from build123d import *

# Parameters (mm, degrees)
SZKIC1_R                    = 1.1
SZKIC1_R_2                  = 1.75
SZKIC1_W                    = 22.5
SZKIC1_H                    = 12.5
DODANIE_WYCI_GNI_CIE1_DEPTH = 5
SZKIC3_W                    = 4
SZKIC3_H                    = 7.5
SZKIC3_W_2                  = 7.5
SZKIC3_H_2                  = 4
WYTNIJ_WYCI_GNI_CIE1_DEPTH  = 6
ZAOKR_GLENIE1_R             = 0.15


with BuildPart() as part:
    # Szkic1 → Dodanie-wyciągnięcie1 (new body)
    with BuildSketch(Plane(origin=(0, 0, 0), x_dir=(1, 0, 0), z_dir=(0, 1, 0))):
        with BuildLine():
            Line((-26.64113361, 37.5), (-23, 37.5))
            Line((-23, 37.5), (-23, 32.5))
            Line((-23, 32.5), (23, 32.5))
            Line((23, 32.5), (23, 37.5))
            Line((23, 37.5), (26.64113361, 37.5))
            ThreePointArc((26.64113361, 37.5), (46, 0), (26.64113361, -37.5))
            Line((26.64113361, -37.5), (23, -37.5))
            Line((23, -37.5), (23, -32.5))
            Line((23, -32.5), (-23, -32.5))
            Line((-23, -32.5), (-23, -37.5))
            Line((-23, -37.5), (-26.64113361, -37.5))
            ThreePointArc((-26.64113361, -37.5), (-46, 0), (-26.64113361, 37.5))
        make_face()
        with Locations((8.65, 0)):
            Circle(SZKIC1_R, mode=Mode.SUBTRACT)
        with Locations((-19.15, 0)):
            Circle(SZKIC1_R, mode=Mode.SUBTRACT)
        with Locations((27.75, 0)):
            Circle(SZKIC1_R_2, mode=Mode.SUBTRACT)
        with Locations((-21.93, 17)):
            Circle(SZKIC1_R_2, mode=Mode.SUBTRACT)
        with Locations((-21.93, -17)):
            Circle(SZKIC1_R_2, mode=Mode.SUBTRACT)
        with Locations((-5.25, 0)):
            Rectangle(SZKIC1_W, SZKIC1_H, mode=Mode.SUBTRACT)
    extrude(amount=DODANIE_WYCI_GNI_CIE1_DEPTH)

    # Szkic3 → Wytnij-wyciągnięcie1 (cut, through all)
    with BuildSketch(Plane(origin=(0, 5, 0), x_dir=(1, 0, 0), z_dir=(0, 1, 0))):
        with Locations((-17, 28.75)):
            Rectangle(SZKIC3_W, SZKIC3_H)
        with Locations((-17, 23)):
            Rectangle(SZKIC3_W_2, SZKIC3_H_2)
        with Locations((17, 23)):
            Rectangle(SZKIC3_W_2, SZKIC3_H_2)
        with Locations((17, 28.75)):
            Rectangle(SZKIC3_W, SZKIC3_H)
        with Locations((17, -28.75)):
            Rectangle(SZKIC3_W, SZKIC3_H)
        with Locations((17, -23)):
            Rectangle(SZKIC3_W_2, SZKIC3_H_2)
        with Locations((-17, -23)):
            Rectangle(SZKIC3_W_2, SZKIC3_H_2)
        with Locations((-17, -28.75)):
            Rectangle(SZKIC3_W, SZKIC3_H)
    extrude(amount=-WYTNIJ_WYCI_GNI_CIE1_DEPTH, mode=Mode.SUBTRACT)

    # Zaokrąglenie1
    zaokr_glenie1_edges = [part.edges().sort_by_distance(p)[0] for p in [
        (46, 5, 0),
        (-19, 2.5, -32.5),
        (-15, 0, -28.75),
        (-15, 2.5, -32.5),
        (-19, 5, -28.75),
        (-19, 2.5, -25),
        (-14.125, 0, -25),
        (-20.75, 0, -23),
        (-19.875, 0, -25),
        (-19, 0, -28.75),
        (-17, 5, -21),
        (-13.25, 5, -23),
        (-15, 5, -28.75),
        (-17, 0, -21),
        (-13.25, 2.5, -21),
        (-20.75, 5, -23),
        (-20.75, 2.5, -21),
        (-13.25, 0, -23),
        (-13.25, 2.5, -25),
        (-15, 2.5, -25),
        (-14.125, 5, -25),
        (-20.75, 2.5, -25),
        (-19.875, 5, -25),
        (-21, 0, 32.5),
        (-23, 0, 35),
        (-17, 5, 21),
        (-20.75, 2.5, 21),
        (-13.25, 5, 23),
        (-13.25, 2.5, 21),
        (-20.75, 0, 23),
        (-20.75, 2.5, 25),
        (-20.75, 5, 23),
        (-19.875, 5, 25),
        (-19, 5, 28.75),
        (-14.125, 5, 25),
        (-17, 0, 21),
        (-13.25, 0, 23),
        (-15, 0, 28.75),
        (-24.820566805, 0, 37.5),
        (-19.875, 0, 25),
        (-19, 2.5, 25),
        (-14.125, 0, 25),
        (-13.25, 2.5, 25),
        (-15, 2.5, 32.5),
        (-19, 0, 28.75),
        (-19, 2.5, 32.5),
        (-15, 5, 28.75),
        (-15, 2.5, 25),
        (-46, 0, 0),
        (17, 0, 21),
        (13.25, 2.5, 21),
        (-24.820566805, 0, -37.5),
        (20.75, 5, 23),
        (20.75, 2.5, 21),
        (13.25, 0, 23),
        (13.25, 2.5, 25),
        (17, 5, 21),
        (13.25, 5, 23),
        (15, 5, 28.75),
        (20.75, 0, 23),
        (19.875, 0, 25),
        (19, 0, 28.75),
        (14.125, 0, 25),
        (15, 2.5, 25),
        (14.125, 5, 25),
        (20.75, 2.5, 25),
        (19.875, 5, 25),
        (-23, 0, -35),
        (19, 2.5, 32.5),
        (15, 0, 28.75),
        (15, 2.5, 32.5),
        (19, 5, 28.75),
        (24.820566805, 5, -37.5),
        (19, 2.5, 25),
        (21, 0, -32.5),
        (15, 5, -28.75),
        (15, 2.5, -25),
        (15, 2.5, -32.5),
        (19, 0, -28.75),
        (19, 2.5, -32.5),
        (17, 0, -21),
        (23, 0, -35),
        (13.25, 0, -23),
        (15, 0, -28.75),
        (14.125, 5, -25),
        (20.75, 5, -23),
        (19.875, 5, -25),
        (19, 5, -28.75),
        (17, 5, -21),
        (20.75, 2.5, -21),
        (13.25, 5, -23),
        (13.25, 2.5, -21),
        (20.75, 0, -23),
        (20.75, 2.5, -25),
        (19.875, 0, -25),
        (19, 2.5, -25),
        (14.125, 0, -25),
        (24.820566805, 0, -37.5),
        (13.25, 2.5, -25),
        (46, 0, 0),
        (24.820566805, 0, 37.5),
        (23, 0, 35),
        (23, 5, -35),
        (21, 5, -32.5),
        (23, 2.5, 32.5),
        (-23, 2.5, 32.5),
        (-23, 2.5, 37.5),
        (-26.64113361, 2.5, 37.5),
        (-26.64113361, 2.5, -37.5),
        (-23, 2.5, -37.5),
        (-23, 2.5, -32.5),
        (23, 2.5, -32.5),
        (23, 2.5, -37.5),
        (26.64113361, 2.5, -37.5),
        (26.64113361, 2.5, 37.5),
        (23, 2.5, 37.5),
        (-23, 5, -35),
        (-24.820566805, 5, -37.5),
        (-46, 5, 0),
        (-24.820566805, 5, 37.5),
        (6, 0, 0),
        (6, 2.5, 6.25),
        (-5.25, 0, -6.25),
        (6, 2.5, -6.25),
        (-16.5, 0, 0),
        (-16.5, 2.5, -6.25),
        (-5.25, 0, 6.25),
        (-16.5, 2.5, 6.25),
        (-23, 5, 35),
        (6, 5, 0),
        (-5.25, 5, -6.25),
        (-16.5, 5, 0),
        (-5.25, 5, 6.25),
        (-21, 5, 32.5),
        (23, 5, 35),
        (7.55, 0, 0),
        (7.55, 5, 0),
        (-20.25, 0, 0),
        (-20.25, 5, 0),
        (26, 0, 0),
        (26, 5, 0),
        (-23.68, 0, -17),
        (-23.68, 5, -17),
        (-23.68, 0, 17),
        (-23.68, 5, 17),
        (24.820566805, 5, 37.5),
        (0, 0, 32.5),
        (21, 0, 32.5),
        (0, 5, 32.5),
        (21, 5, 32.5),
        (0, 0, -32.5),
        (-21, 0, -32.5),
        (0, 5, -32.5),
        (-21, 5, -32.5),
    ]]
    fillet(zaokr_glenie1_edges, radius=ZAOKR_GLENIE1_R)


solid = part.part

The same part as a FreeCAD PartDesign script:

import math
import FreeCAD as App
import Part
import Sketcher

V = App.Vector
Q = App.Units.Quantity

doc = App.newDocument("Part")
body = doc.addObject("PartDesign::Body", "Body")

sketch1 = body.newObject("Sketcher::SketchObject", "Sketch")
sketch1.AttachmentSupport = (doc.getObject("XZ_Plane"), [""])
sketch1.MapMode = "FlatFace"
sketch1.addGeometry(Part.LineSegment(V(-23, -37.5, 0), V(-26.641134, -37.5, 0)), False)
sketch1.addGeometry(Part.ArcOfCircle(Part.Circle(V(0, 0, 0), V(0, 0, 1), 46), math.radians(125.391137), math.radians(234.608863)), False)
sketch1.addGeometry(Part.LineSegment(V(-26.641134, 37.5, 0), V(-23, 37.5, 0)), False)
sketch1.addGeometry(Part.LineSegment(V(-23, 37.5, 0), V(-23, 32.5, 0)), False)
sketch1.addGeometry(Part.LineSegment(V(-23, 32.5, 0), V(23, 32.5, 0)), False)
sketch1.addGeometry(Part.LineSegment(V(23, 32.5, 0), V(23, 37.5, 0)), False)
sketch1.addGeometry(Part.LineSegment(V(23, 37.5, 0), V(26.641134, 37.5, 0)), False)
sketch1.addGeometry(Part.ArcOfCircle(Part.Circle(V(0, 0, 0), V(0, 0, 1), 46), math.radians(-54.608863), math.radians(54.608863)), False)
sketch1.addGeometry(Part.LineSegment(V(26.641134, -37.5, 0), V(23, -37.5, 0)), False)
sketch1.addGeometry(Part.LineSegment(V(23, -37.5, 0), V(23, -32.5, 0)), False)
sketch1.addGeometry(Part.LineSegment(V(23, -32.5, 0), V(-23, -32.5, 0)), False)
sketch1.addGeometry(Part.LineSegment(V(-23, -32.5, 0), V(-23, -37.5, 0)), False)
sketch1.addGeometry(Part.Circle(V(-21.93, 17, 0), V(0, 0, 1), 1.75), False)
sketch1.addGeometry(Part.Circle(V(27.75, 0, 0), V(0, 0, 1), 1.75), False)
sketch1.addGeometry(Part.Circle(V(8.65, 0, 0), V(0, 0, 1), 1.1), False)
sketch1.addGeometry(Part.LineSegment(V(-16.5, 6.25, 0), V(-16.5, -6.25, 0)), False)
sketch1.addGeometry(Part.LineSegment(V(-16.5, -6.25, 0), V(6, -6.25, 0)), False)
sketch1.addGeometry(Part.LineSegment(V(6, -6.25, 0), V(6, 6.25, 0)), False)
sketch1.addGeometry(Part.LineSegment(V(6, 6.25, 0), V(-16.5, 6.25, 0)), False)
sketch1.addGeometry(Part.Circle(V(-19.15, 0, 0), V(0, 0, 1), 1.1), False)
sketch1.addGeometry(Part.Circle(V(-21.93, -17, 0), V(0, 0, 1), 1.75), False)
sketch1.addConstraint(Sketcher.Constraint("Coincident", 0, 2, 1, 2))
sketch1.addConstraint(Sketcher.Constraint("Coincident", 1, 1, 2, 1))
sketch1.addConstraint(Sketcher.Constraint("Coincident", 2, 2, 3, 1))
sketch1.addConstraint(Sketcher.Constraint("Coincident", 3, 2, 4, 1))
sketch1.addConstraint(Sketcher.Constraint("Coincident", 4, 2, 5, 1))
sketch1.addConstraint(Sketcher.Constraint("Coincident", 5, 2, 6, 1))
sketch1.addConstraint(Sketcher.Constraint("Coincident", 6, 2, 7, 2))
sketch1.addConstraint(Sketcher.Constraint("Coincident", 7, 1, 8, 1))
sketch1.addConstraint(Sketcher.Constraint("Coincident", 8, 2, 9, 1))
sketch1.addConstraint(Sketcher.Constraint("Coincident", 9, 2, 10, 1))
sketch1.addConstraint(Sketcher.Constraint("Coincident", 10, 2, 11, 1))
sketch1.addConstraint(Sketcher.Constraint("Coincident", 11, 2, 0, 1))
sketch1.addConstraint(Sketcher.Constraint("Coincident", 15, 2, 16, 1))
sketch1.addConstraint(Sketcher.Constraint("Coincident", 16, 2, 17, 1))
sketch1.addConstraint(Sketcher.Constraint("Coincident", 17, 2, 18, 1))
sketch1.addConstraint(Sketcher.Constraint("Coincident", 18, 2, 15, 1))
sketch1.addConstraint(Sketcher.Constraint("Horizontal", 0))
sketch1.addConstraint(Sketcher.Constraint("Horizontal", 2))
sketch1.addConstraint(Sketcher.Constraint("Vertical", 3))
sketch1.addConstraint(Sketcher.Constraint("Horizontal", 4))
sketch1.addConstraint(Sketcher.Constraint("Vertical", 5))
sketch1.addConstraint(Sketcher.Constraint("Horizontal", 6))
sketch1.addConstraint(Sketcher.Constraint("Horizontal", 8))
sketch1.addConstraint(Sketcher.Constraint("Vertical", 9))
sketch1.addConstraint(Sketcher.Constraint("Horizontal", 10))
sketch1.addConstraint(Sketcher.Constraint("Vertical", 11))
sketch1.addConstraint(Sketcher.Constraint("Vertical", 15))
sketch1.addConstraint(Sketcher.Constraint("Horizontal", 16))
sketch1.addConstraint(Sketcher.Constraint("Vertical", 17))
sketch1.addConstraint(Sketcher.Constraint("Horizontal", 18))
sketch1.addConstraint(Sketcher.Constraint("Coincident", 1, 3, -1, 1))
sketch1.addConstraint(Sketcher.Constraint("Coincident", 7, 3, -1, 1))
sketch1.addConstraint(Sketcher.Constraint("Equal", 1, 7))
sketch1.addConstraint(Sketcher.Constraint("Equal", 12, 13))
sketch1.addConstraint(Sketcher.Constraint("Equal", 14, 19))
sketch1.addConstraint(Sketcher.Constraint("Equal", 13, 20))
sketch1.addConstraint(Sketcher.Constraint("Symmetric", 2, 2, 8, 2, -1, 1))
sketch1.addConstraint(Sketcher.Constraint("Symmetric", 4, 2, 10, 2, -1, 1))
sketch1.addConstraint(Sketcher.Constraint("Symmetric", 2, 2, 5, 2, -2))
sketch1.addConstraint(Sketcher.Constraint("Symmetric", 12, 3, 20, 3, -1))
sketch1.addConstraint(Sketcher.Constraint("PointOnObject", 13, 3, -1))
sketch1.addConstraint(Sketcher.Constraint("PointOnObject", 14, 3, -1))
sketch1.addConstraint(Sketcher.Constraint("PointOnObject", 19, 3, -1))
sketch1.addConstraint(Sketcher.Constraint("Horizontal", 0, 2, 7, 1))
sketch1.addConstraint(Sketcher.Constraint("Radius", 1, Q("46 mm")))
sketch1.addConstraint(Sketcher.Constraint("Diameter", 12, Q("3.5 mm")))
sketch1.addConstraint(Sketcher.Constraint("Diameter", 14, Q("2.2 mm")))
sketch1.addConstraint(Sketcher.Constraint("DistanceX", 4, 1, 4, 2, Q("46 mm")))
sketch1.addConstraint(Sketcher.Constraint("DistanceY", 3, 2, 3, 1, Q("5 mm")))
sketch1.addConstraint(Sketcher.Constraint("DistanceX", 16, 1, 16, 2, Q("22.5 mm")))
sketch1.addConstraint(Sketcher.Constraint("DistanceY", 15, 2, 15, 1, Q("12.5 mm")))
sketch1.addConstraint(Sketcher.Constraint("DistanceY", -1, 1, 12, 3, Q("17 mm")))
sketch1.addConstraint(Sketcher.Constraint("DistanceX", -1, 1, 16, 2, Q("6 mm")))
sketch1.addConstraint(Sketcher.Constraint("DistanceY", 0, 2, -1, 1, Q("37.5 mm")))
sketch1.addConstraint(Sketcher.Constraint("DistanceX", 14, 3, 13, 3, Q("19.1 mm")))
sketch1.addConstraint(Sketcher.Constraint("DistanceX", 19, 3, 14, 3, Q("27.8 mm")))
sketch1.addConstraint(Sketcher.Constraint("DistanceX", 12, 3, -1, 1, Q("21.93 mm")))
sketch1.addConstraint(Sketcher.Constraint("DistanceX", -1, 1, 13, 3, Q("27.75 mm")))
sketch1.addConstraint(Sketcher.Constraint("DistanceY", 15, 2, -1, 1, Q("6.25 mm")))
pad1 = body.newObject("PartDesign::Pad", "Pad")
pad1.Profile = sketch1
pad1.Length = 5
pad1.Reversed = True

sketch2 = body.newObject("Sketcher::SketchObject", "Sketch001")
sketch2.AttachmentSupport = (doc.getObject("XZ_Plane"), [""])
sketch2.MapMode = "FlatFace"
sketch2.AttachmentOffset = App.Placement(V(0, 0, -5), App.Rotation())
sketch2.addGeometry(Part.LineSegment(V(-19, -32.5, 0), V(-19, -25, 0)), False)
sketch2.addGeometry(Part.LineSegment(V(-19, -25, 0), V(-20.75, -25, 0)), False)
sketch2.addGeometry(Part.LineSegment(V(-20.75, -25, 0), V(-20.75, -21, 0)), False)
sketch2.addGeometry(Part.LineSegment(V(-20.75, -21, 0), V(-13.25, -21, 0)), False)
sketch2.addGeometry(Part.LineSegment(V(-13.25, -21, 0), V(-13.25, -25, 0)), False)
sketch2.addGeometry(Part.LineSegment(V(-13.25, -25, 0), V(-15, -25, 0)), False)
sketch2.addGeometry(Part.LineSegment(V(-15, -25, 0), V(-15, -32.5, 0)), False)
sketch2.addGeometry(Part.LineSegment(V(-15, -32.5, 0), V(-19, -32.5, 0)), False)
sketch2.addGeometry(Part.LineSegment(V(13.25, -25, 0), V(13.25, -21, 0)), False)
sketch2.addGeometry(Part.LineSegment(V(13.25, -21, 0), V(20.75, -21, 0)), False)
sketch2.addGeometry(Part.LineSegment(V(20.75, -21, 0), V(20.75, -25, 0)), False)
sketch2.addGeometry(Part.LineSegment(V(20.75, -25, 0), V(19, -25, 0)), False)
sketch2.addGeometry(Part.LineSegment(V(19, -25, 0), V(19, -32.5, 0)), False)
sketch2.addGeometry(Part.LineSegment(V(19, -32.5, 0), V(15, -32.5, 0)), False)
sketch2.addGeometry(Part.LineSegment(V(15, -32.5, 0), V(15, -25, 0)), False)
sketch2.addGeometry(Part.LineSegment(V(15, -25, 0), V(13.25, -25, 0)), False)
sketch2.addGeometry(Part.LineSegment(V(15, 25, 0), V(15, 32.5, 0)), False)
sketch2.addGeometry(Part.LineSegment(V(15, 32.5, 0), V(19, 32.5, 0)), False)
sketch2.addGeometry(Part.LineSegment(V(19, 32.5, 0), V(19, 25, 0)), False)
sketch2.addGeometry(Part.LineSegment(V(19, 25, 0), V(20.75, 25, 0)), False)
sketch2.addGeometry(Part.LineSegment(V(20.75, 25, 0), V(20.75, 21, 0)), False)
sketch2.addGeometry(Part.LineSegment(V(20.75, 21, 0), V(13.25, 21, 0)), False)
sketch2.addGeometry(Part.LineSegment(V(13.25, 21, 0), V(13.25, 25, 0)), False)
sketch2.addGeometry(Part.LineSegment(V(13.25, 25, 0), V(15, 25, 0)), False)
sketch2.addGeometry(Part.LineSegment(V(-20.75, 21, 0), V(-20.75, 25, 0)), False)
sketch2.addGeometry(Part.LineSegment(V(-20.75, 25, 0), V(-19, 25, 0)), False)
sketch2.addGeometry(Part.LineSegment(V(-19, 25, 0), V(-19, 32.5, 0)), False)
sketch2.addGeometry(Part.LineSegment(V(-19, 32.5, 0), V(-15, 32.5, 0)), False)
sketch2.addGeometry(Part.LineSegment(V(-15, 32.5, 0), V(-15, 25, 0)), False)
sketch2.addGeometry(Part.LineSegment(V(-15, 25, 0), V(-13.25, 25, 0)), False)
sketch2.addGeometry(Part.LineSegment(V(-13.25, 25, 0), V(-13.25, 21, 0)), False)
sketch2.addGeometry(Part.LineSegment(V(-13.25, 21, 0), V(-20.75, 21, 0)), False)
sketch2.addConstraint(Sketcher.Constraint("Coincident", 0, 2, 1, 1))
sketch2.addConstraint(Sketcher.Constraint("Coincident", 1, 2, 2, 1))
sketch2.addConstraint(Sketcher.Constraint("Coincident", 2, 2, 3, 1))
sketch2.addConstraint(Sketcher.Constraint("Coincident", 3, 2, 4, 1))
sketch2.addConstraint(Sketcher.Constraint("Coincident", 4, 2, 5, 1))
sketch2.addConstraint(Sketcher.Constraint("Coincident", 5, 2, 6, 1))
sketch2.addConstraint(Sketcher.Constraint("Coincident", 6, 2, 7, 1))
sketch2.addConstraint(Sketcher.Constraint("Coincident", 7, 2, 0, 1))
sketch2.addConstraint(Sketcher.Constraint("Coincident", 8, 2, 9, 1))
sketch2.addConstraint(Sketcher.Constraint("Coincident", 9, 2, 10, 1))
sketch2.addConstraint(Sketcher.Constraint("Coincident", 10, 2, 11, 1))
sketch2.addConstraint(Sketcher.Constraint("Coincident", 11, 2, 12, 1))
sketch2.addConstraint(Sketcher.Constraint("Coincident", 12, 2, 13, 1))
sketch2.addConstraint(Sketcher.Constraint("Coincident", 13, 2, 14, 1))
sketch2.addConstraint(Sketcher.Constraint("Coincident", 14, 2, 15, 1))
sketch2.addConstraint(Sketcher.Constraint("Coincident", 15, 2, 8, 1))
sketch2.addConstraint(Sketcher.Constraint("Coincident", 16, 2, 17, 1))
sketch2.addConstraint(Sketcher.Constraint("Coincident", 17, 2, 18, 1))
sketch2.addConstraint(Sketcher.Constraint("Coincident", 18, 2, 19, 1))
sketch2.addConstraint(Sketcher.Constraint("Coincident", 19, 2, 20, 1))
sketch2.addConstraint(Sketcher.Constraint("Coincident", 20, 2, 21, 1))
sketch2.addConstraint(Sketcher.Constraint("Coincident", 21, 2, 22, 1))
sketch2.addConstraint(Sketcher.Constraint("Coincident", 22, 2, 23, 1))
sketch2.addConstraint(Sketcher.Constraint("Coincident", 23, 2, 16, 1))
sketch2.addConstraint(Sketcher.Constraint("Coincident", 24, 2, 25, 1))
sketch2.addConstraint(Sketcher.Constraint("Coincident", 25, 2, 26, 1))
sketch2.addConstraint(Sketcher.Constraint("Coincident", 26, 2, 27, 1))
sketch2.addConstraint(Sketcher.Constraint("Coincident", 27, 2, 28, 1))
sketch2.addConstraint(Sketcher.Constraint("Coincident", 28, 2, 29, 1))
sketch2.addConstraint(Sketcher.Constraint("Coincident", 29, 2, 30, 1))
sketch2.addConstraint(Sketcher.Constraint("Coincident", 30, 2, 31, 1))
sketch2.addConstraint(Sketcher.Constraint("Coincident", 31, 2, 24, 1))
sketch2.addConstraint(Sketcher.Constraint("Vertical", 0))
sketch2.addConstraint(Sketcher.Constraint("Horizontal", 1))
sketch2.addConstraint(Sketcher.Constraint("Vertical", 2))
sketch2.addConstraint(Sketcher.Constraint("Horizontal", 3))
sketch2.addConstraint(Sketcher.Constraint("Vertical", 4))
sketch2.addConstraint(Sketcher.Constraint("Horizontal", 5))
sketch2.addConstraint(Sketcher.Constraint("Vertical", 6))
sketch2.addConstraint(Sketcher.Constraint("Horizontal", 7))
sketch2.addConstraint(Sketcher.Constraint("Vertical", 8))
sketch2.addConstraint(Sketcher.Constraint("Horizontal", 9))
sketch2.addConstraint(Sketcher.Constraint("Vertical", 10))
sketch2.addConstraint(Sketcher.Constraint("Horizontal", 11))
sketch2.addConstraint(Sketcher.Constraint("Vertical", 12))
sketch2.addConstraint(Sketcher.Constraint("Horizontal", 13))
sketch2.addConstraint(Sketcher.Constraint("Vertical", 14))
sketch2.addConstraint(Sketcher.Constraint("Horizontal", 15))
sketch2.addConstraint(Sketcher.Constraint("Vertical", 16))
sketch2.addConstraint(Sketcher.Constraint("Horizontal", 17))
sketch2.addConstraint(Sketcher.Constraint("Vertical", 18))
sketch2.addConstraint(Sketcher.Constraint("Horizontal", 19))
sketch2.addConstraint(Sketcher.Constraint("Vertical", 20))
sketch2.addConstraint(Sketcher.Constraint("Horizontal", 21))
sketch2.addConstraint(Sketcher.Constraint("Vertical", 22))
sketch2.addConstraint(Sketcher.Constraint("Horizontal", 23))
sketch2.addConstraint(Sketcher.Constraint("Vertical", 24))
sketch2.addConstraint(Sketcher.Constraint("Horizontal", 25))
sketch2.addConstraint(Sketcher.Constraint("Vertical", 26))
sketch2.addConstraint(Sketcher.Constraint("Horizontal", 27))
sketch2.addConstraint(Sketcher.Constraint("Vertical", 28))
sketch2.addConstraint(Sketcher.Constraint("Horizontal", 29))
sketch2.addConstraint(Sketcher.Constraint("Vertical", 30))
sketch2.addConstraint(Sketcher.Constraint("Horizontal", 31))
sketch2.addConstraint(Sketcher.Constraint("Symmetric", 6, 2, 16, 2, -1, 1))
sketch2.addConstraint(Sketcher.Constraint("Symmetric", 0, 2, 18, 2, -1, 1))
sketch2.addConstraint(Sketcher.Constraint("Symmetric", 2, 2, 20, 2, -1, 1))
sketch2.addConstraint(Sketcher.Constraint("Symmetric", 4, 2, 22, 2, -1, 1))
sketch2.addConstraint(Sketcher.Constraint("Symmetric", 10, 2, 24, 2, -1, 1))
sketch2.addConstraint(Sketcher.Constraint("Symmetric", 12, 2, 26, 2, -1, 1))
sketch2.addConstraint(Sketcher.Constraint("Symmetric", 14, 2, 28, 2, -1, 1))
sketch2.addConstraint(Sketcher.Constraint("Symmetric", 8, 2, 30, 2, -1, 1))
sketch2.addConstraint(Sketcher.Constraint("Symmetric", 3, 2, 8, 2, -2))
sketch2.addConstraint(Sketcher.Constraint("Symmetric", 1, 2, 10, 2, -2))
sketch2.addConstraint(Sketcher.Constraint("Symmetric", 7, 2, 12, 2, -2))
sketch2.addConstraint(Sketcher.Constraint("Symmetric", 5, 2, 14, 2, -2))
sketch2.addConstraint(Sketcher.Constraint("Horizontal", 1, 2, 4, 2))
sketch2.addConstraint(Sketcher.Constraint("Equal", 1, 5))
sketch2.addConstraint(Sketcher.Constraint("Equal", 31, 0))
sketch2.addConstraint(Sketcher.Constraint("Equal", 27, 2))
sketch2.addConstraint(Sketcher.Constraint("DistanceX", 7, 2, 7, 1, Q("4 mm")))
sketch2.addConstraint(Sketcher.Constraint("DistanceX", 3, 1, 3, 2, Q("7.5 mm")))
sketch2.addConstraint(Sketcher.Constraint("DistanceX", 0, 2, -1, 1, Q("19 mm")))
sketch2.addConstraint(Sketcher.Constraint("DistanceY", 0, 2, -1, 1, Q("25 mm")))
pocket1 = body.newObject("PartDesign::Pocket", "Pocket")
pocket1.Profile = sketch2
pocket1.Type = "ThroughAll"
pocket1.Reversed = True
doc.recompute()

fillet = body.newObject("PartDesign::Fillet", "Fillet")
fillet.Base = (pocket1, ["Edge1"])
fillet.UseAllEdges = True
fillet.Radius = 0.15

doc.recompute()
